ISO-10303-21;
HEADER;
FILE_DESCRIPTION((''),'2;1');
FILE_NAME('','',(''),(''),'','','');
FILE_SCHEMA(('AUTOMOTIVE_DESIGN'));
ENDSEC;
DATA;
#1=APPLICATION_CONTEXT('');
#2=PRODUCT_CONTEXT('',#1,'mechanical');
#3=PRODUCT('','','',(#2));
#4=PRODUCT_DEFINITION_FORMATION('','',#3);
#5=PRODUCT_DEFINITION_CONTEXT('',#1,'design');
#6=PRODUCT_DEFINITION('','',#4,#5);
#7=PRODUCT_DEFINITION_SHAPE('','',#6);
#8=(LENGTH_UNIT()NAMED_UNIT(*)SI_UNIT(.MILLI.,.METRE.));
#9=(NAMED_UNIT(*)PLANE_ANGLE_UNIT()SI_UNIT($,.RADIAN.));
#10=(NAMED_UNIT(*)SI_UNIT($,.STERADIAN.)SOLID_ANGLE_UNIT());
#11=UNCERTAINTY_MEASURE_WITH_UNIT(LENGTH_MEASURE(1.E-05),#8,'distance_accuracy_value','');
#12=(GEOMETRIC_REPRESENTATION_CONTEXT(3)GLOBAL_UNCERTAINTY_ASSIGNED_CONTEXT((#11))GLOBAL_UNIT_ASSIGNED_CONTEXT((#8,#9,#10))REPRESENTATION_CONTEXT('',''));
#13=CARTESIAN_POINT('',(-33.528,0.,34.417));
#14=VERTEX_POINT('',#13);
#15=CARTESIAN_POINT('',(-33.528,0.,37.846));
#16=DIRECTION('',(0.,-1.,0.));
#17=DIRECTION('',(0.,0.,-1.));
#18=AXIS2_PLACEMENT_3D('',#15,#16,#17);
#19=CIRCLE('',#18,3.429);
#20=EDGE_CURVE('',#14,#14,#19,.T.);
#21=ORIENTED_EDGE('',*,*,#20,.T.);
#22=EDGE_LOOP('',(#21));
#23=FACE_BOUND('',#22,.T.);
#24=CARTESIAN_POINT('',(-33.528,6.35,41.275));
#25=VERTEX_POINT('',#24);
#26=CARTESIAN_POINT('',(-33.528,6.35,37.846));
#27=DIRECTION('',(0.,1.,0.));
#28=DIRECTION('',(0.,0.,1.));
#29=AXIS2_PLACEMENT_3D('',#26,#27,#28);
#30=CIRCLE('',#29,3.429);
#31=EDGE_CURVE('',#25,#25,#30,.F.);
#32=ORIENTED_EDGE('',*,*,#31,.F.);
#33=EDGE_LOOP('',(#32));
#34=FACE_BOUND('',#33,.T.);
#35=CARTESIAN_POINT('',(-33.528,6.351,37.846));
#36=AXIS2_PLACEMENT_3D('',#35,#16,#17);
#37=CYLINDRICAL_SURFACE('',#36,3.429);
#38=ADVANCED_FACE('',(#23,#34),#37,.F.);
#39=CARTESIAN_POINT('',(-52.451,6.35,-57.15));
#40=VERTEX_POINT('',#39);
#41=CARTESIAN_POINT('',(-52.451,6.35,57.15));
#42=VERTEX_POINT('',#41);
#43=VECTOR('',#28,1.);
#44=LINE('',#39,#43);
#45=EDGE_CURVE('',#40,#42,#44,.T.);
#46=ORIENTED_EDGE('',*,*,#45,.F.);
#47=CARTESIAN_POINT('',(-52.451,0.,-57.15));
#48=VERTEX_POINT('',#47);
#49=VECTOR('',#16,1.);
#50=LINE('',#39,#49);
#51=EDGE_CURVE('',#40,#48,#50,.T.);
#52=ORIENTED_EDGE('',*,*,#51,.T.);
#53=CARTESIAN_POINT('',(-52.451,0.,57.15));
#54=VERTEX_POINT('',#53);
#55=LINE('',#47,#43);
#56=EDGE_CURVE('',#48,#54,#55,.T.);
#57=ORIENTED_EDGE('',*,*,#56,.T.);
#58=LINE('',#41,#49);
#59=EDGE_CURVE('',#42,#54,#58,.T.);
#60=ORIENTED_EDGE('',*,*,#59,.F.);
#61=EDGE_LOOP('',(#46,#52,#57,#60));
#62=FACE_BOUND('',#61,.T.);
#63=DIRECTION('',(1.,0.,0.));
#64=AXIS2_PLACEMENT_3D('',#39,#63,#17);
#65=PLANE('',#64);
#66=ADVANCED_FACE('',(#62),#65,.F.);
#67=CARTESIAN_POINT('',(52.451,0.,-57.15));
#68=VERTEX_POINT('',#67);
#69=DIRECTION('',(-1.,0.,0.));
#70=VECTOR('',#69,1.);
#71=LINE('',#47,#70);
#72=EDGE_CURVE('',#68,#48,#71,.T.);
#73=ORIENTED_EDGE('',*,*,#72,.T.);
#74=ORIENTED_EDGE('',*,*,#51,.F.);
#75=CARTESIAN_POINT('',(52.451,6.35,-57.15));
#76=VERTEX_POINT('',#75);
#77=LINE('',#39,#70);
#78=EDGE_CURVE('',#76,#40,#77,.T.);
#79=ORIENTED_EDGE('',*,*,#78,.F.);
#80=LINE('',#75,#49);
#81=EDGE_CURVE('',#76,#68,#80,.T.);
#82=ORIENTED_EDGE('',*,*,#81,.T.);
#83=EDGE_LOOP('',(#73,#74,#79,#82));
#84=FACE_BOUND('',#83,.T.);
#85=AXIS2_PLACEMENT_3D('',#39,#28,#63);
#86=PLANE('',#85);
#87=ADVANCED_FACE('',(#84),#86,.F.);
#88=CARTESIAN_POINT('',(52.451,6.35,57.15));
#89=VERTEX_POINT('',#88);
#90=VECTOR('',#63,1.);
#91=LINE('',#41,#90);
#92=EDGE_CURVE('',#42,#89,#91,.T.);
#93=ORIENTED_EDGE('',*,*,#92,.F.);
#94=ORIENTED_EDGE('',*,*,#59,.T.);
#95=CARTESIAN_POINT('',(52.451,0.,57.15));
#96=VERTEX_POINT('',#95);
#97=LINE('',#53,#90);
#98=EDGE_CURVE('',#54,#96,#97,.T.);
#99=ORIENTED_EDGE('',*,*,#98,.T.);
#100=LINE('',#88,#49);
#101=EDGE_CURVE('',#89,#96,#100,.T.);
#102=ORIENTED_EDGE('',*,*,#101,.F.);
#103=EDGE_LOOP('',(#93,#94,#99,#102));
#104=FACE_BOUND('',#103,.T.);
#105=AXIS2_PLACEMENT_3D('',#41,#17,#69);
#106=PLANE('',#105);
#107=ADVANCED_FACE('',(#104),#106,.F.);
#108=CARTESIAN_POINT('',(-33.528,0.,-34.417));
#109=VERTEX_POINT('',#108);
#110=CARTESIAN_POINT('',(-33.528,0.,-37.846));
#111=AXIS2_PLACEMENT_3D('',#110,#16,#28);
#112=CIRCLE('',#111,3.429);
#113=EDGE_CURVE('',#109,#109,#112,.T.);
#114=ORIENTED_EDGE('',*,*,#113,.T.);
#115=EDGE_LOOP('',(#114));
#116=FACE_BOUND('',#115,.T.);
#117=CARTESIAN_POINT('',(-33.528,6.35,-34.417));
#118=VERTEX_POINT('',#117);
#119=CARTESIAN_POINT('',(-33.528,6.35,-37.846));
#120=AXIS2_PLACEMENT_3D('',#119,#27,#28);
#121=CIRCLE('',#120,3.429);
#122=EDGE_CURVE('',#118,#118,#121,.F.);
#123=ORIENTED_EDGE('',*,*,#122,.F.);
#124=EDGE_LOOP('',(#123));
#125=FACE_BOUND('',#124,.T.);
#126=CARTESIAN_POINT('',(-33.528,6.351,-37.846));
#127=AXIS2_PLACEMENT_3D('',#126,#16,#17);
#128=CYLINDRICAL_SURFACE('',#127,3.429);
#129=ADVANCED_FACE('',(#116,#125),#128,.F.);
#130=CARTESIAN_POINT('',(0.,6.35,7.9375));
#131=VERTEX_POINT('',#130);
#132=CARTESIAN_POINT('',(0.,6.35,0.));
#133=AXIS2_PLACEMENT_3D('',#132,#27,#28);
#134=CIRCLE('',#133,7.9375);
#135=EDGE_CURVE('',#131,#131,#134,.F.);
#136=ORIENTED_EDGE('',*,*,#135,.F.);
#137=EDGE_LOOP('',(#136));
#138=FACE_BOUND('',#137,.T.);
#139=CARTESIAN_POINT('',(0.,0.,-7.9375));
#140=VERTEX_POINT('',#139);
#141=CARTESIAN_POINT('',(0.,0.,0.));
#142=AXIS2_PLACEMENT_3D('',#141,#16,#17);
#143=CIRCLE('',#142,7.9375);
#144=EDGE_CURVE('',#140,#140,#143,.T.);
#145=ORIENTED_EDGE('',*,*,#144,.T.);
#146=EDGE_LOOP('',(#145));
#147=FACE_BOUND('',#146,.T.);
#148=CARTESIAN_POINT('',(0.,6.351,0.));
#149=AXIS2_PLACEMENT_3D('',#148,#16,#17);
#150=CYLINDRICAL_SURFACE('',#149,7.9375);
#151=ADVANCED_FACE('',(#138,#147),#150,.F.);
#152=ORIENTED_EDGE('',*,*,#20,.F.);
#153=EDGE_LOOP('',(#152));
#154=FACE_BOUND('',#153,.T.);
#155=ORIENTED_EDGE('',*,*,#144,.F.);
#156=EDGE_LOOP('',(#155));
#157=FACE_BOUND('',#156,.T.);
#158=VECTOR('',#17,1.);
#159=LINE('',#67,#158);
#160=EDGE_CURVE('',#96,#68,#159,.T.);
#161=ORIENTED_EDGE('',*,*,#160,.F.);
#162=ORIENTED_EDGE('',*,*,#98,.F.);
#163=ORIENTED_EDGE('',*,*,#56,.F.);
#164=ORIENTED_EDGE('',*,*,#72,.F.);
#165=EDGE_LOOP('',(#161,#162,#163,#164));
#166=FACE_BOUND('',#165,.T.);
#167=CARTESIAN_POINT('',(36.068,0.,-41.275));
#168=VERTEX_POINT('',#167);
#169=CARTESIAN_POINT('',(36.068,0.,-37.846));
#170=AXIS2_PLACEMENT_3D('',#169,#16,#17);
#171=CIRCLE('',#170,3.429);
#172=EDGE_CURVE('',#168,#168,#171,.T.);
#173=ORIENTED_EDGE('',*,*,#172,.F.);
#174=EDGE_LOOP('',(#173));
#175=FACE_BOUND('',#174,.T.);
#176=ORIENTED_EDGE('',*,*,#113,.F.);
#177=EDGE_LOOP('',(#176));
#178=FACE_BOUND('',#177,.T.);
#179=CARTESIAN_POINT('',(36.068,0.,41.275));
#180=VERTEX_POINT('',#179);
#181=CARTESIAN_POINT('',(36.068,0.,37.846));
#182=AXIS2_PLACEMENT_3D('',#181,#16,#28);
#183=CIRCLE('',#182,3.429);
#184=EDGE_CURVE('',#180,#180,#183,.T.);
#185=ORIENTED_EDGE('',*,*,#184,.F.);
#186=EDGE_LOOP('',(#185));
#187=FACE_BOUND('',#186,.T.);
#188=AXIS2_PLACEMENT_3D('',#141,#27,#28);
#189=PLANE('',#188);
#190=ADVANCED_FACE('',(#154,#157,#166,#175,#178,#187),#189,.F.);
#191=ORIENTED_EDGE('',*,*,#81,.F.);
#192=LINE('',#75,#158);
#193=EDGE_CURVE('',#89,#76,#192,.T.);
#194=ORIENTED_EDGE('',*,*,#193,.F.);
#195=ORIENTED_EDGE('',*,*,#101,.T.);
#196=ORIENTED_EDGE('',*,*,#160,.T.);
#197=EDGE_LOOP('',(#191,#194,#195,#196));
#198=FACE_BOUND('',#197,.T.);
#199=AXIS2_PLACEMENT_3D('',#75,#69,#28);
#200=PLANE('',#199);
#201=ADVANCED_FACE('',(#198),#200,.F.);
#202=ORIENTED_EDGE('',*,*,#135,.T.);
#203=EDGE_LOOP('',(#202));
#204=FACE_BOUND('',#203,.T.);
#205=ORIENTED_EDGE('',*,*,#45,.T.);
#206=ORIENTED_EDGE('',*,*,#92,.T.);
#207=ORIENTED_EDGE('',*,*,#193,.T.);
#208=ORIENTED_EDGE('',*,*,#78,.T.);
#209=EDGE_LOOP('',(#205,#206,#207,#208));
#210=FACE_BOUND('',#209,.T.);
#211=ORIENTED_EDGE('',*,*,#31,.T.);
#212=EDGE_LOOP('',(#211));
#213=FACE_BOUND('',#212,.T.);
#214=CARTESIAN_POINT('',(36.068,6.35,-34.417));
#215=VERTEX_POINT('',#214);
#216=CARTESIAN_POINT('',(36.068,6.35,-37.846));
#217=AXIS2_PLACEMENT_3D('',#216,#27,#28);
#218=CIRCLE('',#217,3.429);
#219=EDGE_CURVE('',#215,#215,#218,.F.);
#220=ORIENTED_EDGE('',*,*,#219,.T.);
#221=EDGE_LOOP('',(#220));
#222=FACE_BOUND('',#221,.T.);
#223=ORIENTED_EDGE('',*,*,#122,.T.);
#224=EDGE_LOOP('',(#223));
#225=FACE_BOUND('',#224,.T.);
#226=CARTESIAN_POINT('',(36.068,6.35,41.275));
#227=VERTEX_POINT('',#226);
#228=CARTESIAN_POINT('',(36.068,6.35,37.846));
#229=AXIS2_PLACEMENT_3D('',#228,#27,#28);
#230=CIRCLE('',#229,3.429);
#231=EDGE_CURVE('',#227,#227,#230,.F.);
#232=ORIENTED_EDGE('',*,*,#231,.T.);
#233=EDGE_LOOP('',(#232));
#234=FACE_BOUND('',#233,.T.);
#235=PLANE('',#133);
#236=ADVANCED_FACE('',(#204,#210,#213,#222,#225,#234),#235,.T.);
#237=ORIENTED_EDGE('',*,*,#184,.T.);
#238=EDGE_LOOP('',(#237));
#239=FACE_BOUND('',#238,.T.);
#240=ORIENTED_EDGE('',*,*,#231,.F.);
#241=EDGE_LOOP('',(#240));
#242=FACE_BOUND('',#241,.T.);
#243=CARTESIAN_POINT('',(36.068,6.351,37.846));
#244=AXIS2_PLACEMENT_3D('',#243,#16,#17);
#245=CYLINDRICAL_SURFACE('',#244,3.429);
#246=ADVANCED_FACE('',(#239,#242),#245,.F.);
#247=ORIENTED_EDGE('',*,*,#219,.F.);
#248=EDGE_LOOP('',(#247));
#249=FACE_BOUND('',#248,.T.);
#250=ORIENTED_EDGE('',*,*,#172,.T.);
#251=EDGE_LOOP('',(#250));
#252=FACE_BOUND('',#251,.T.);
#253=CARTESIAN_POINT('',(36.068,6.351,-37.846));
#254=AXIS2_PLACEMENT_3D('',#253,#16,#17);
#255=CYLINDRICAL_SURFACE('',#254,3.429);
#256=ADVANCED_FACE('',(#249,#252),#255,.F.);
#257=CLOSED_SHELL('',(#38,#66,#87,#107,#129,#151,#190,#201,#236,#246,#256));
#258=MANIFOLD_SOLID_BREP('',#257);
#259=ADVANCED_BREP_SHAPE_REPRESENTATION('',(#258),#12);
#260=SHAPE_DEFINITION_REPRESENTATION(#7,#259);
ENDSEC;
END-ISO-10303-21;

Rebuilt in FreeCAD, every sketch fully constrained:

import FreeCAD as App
import Part
import Sketcher
Q = App.Units.Quantity


def add_polygon(sketch, points):
    """Adds a closed chain of lines whose ends are joined by coincident constraints."""
    first, n = sketch.GeometryCount, len(points)
    for a, b in zip(points, points[1:] + points[:1]):
        sketch.addGeometry(Part.LineSegment(App.Vector(*a, 0), App.Vector(*b, 0)), False)
    for i in range(n):
        sketch.addConstraint(Sketcher.Constraint("Coincident", first + i, 2, first + (i + 1) % n, 1))

doc = App.newDocument("Part")
body = doc.addObject("PartDesign::Body", "Body")

# Sketch on XZ plane
sketch1 = body.newObject("Sketcher::SketchObject", "Sketch")
sketch1.AttachmentSupport = (doc.getObject("XZ_Plane"), [""])
sketch1.MapMode = "FlatFace"
add_polygon(sketch1, [(-52.451, -57.15), (-52.451, 57.15), (52.451, 57.15), (52.451, -57.15)])  # lines 0-3
sketch1.addConstraint([
    Sketcher.Constraint("Vertical", 0),
    Sketcher.Constraint("Horizontal", 1),
    Sketcher.Constraint("Vertical", 2),
    Sketcher.Constraint("Horizontal", 3),
    Sketcher.Constraint("Symmetric", 0, 2, 2, 2, -1, 1),
    Sketcher.Constraint("DistanceY", 0, 1, 0, 2, Q("4.5 in")),
    Sketcher.Constraint("DistanceX", 1, 1, 1, 2, Q("4.13 in")),
])
pad1 = body.newObject("PartDesign::Pad", "Pad")
pad1.Profile = sketch1
pad1.Length = Q("0.25 in")
pad1.Reversed = True

# Sketch on XZ plane
sketch2 = body.newObject("Sketcher::SketchObject", "Sketch001")
sketch2.AttachmentSupport = (doc.getObject("XZ_Plane"), [""])
sketch2.MapMode = "FlatFace"
sketch2.addGeometry(Part.Circle(App.Vector(-33.528, 37.846, 0), App.Vector(0, 0, 1), 3.429), False)
sketch2.addConstraint([
    Sketcher.Constraint("Diameter", 0, Q("0.27 in")),
    Sketcher.Constraint("DistanceX", 0, 3, -1, 1, Q("1.32 in")),
    Sketcher.Constraint("DistanceY", -1, 1, 0, 3, Q("1.49 in")),
])
pocket1 = body.newObject("PartDesign::Pocket", "Pocket")
pocket1.Profile = sketch2
pocket1.Type = "UpToFirst"

# Sketch on XZ plane
sketch3 = body.newObject("Sketcher::SketchObject", "Sketch002")
sketch3.AttachmentSupport = (doc.getObject("XZ_Plane"), [""])
sketch3.MapMode = "FlatFace"
sketch3.addGeometry(Part.Circle(App.Vector(-33.528, -37.846, 0), App.Vector(0, 0, 1), 3.429), False)
sketch3.addConstraint([
    Sketcher.Constraint("Diameter", 0, Q("0.27 in")),
    Sketcher.Constraint("DistanceX", 0, 3, -1, 1, Q("1.32 in")),
    Sketcher.Constraint("DistanceY", 0, 3, -1, 1, Q("1.49 in")),
])
pocket2 = body.newObject("PartDesign::Pocket", "Pocket001")
pocket2.Profile = sketch3
pocket2.Type = "UpToFirst"

# Sketch on XZ plane
sketch4 = body.newObject("Sketcher::SketchObject", "Sketch003")
sketch4.AttachmentSupport = (doc.getObject("XZ_Plane"), [""])
sketch4.MapMode = "FlatFace"
sketch4.addGeometry(Part.Circle(App.Vector(36.068, 37.846, 0), App.Vector(0, 0, 1), 3.429), False)
sketch4.addConstraint([
    Sketcher.Constraint("Diameter", 0, Q("0.27 in")),
    Sketcher.Constraint("DistanceX", -1, 1, 0, 3, Q("1.42 in")),
    Sketcher.Constraint("DistanceY", -1, 1, 0, 3, Q("1.49 in")),
])
pocket3 = body.newObject("PartDesign::Pocket", "Pocket002")
pocket3.Profile = sketch4
pocket3.Type = "UpToFirst"

# Sketch on XZ plane
sketch5 = body.newObject("Sketcher::SketchObject", "Sketch004")
sketch5.AttachmentSupport = (doc.getObject("XZ_Plane"), [""])
sketch5.MapMode = "FlatFace"
sketch5.addGeometry(Part.Circle(App.Vector(36.068, -37.846, 0), App.Vector(0, 0, 1), 3.429), False)
sketch5.addConstraint([
    Sketcher.Constraint("Diameter", 0, Q("0.27 in")),
    Sketcher.Constraint("DistanceX", -1, 1, 0, 3, Q("1.42 in")),
    Sketcher.Constraint("DistanceY", 0, 3, -1, 1, Q("1.49 in")),
])
pocket4 = body.newObject("PartDesign::Pocket", "Pocket003")
pocket4.Profile = sketch5
pocket4.Type = "UpToFirst"

# Sketch on XZ plane
sketch6 = body.newObject("Sketcher::SketchObject", "Sketch005")
sketch6.AttachmentSupport = (doc.getObject("XZ_Plane"), [""])
sketch6.MapMode = "FlatFace"
sketch6.addGeometry(Part.Circle(App.Vector(0, 0, 0), App.Vector(0, 0, 1), 7.9375), False)
sketch6.addConstraint([
    Sketcher.Constraint("Coincident", 0, 3, -1, 1),
    Sketcher.Constraint("Diameter", 0, Q("0.625 in")),
])
pocket5 = body.newObject("PartDesign::Pocket", "Pocket004")
pocket5.Profile = sketch6
pocket5.Type = "UpToFirst"

doc.recompute()
